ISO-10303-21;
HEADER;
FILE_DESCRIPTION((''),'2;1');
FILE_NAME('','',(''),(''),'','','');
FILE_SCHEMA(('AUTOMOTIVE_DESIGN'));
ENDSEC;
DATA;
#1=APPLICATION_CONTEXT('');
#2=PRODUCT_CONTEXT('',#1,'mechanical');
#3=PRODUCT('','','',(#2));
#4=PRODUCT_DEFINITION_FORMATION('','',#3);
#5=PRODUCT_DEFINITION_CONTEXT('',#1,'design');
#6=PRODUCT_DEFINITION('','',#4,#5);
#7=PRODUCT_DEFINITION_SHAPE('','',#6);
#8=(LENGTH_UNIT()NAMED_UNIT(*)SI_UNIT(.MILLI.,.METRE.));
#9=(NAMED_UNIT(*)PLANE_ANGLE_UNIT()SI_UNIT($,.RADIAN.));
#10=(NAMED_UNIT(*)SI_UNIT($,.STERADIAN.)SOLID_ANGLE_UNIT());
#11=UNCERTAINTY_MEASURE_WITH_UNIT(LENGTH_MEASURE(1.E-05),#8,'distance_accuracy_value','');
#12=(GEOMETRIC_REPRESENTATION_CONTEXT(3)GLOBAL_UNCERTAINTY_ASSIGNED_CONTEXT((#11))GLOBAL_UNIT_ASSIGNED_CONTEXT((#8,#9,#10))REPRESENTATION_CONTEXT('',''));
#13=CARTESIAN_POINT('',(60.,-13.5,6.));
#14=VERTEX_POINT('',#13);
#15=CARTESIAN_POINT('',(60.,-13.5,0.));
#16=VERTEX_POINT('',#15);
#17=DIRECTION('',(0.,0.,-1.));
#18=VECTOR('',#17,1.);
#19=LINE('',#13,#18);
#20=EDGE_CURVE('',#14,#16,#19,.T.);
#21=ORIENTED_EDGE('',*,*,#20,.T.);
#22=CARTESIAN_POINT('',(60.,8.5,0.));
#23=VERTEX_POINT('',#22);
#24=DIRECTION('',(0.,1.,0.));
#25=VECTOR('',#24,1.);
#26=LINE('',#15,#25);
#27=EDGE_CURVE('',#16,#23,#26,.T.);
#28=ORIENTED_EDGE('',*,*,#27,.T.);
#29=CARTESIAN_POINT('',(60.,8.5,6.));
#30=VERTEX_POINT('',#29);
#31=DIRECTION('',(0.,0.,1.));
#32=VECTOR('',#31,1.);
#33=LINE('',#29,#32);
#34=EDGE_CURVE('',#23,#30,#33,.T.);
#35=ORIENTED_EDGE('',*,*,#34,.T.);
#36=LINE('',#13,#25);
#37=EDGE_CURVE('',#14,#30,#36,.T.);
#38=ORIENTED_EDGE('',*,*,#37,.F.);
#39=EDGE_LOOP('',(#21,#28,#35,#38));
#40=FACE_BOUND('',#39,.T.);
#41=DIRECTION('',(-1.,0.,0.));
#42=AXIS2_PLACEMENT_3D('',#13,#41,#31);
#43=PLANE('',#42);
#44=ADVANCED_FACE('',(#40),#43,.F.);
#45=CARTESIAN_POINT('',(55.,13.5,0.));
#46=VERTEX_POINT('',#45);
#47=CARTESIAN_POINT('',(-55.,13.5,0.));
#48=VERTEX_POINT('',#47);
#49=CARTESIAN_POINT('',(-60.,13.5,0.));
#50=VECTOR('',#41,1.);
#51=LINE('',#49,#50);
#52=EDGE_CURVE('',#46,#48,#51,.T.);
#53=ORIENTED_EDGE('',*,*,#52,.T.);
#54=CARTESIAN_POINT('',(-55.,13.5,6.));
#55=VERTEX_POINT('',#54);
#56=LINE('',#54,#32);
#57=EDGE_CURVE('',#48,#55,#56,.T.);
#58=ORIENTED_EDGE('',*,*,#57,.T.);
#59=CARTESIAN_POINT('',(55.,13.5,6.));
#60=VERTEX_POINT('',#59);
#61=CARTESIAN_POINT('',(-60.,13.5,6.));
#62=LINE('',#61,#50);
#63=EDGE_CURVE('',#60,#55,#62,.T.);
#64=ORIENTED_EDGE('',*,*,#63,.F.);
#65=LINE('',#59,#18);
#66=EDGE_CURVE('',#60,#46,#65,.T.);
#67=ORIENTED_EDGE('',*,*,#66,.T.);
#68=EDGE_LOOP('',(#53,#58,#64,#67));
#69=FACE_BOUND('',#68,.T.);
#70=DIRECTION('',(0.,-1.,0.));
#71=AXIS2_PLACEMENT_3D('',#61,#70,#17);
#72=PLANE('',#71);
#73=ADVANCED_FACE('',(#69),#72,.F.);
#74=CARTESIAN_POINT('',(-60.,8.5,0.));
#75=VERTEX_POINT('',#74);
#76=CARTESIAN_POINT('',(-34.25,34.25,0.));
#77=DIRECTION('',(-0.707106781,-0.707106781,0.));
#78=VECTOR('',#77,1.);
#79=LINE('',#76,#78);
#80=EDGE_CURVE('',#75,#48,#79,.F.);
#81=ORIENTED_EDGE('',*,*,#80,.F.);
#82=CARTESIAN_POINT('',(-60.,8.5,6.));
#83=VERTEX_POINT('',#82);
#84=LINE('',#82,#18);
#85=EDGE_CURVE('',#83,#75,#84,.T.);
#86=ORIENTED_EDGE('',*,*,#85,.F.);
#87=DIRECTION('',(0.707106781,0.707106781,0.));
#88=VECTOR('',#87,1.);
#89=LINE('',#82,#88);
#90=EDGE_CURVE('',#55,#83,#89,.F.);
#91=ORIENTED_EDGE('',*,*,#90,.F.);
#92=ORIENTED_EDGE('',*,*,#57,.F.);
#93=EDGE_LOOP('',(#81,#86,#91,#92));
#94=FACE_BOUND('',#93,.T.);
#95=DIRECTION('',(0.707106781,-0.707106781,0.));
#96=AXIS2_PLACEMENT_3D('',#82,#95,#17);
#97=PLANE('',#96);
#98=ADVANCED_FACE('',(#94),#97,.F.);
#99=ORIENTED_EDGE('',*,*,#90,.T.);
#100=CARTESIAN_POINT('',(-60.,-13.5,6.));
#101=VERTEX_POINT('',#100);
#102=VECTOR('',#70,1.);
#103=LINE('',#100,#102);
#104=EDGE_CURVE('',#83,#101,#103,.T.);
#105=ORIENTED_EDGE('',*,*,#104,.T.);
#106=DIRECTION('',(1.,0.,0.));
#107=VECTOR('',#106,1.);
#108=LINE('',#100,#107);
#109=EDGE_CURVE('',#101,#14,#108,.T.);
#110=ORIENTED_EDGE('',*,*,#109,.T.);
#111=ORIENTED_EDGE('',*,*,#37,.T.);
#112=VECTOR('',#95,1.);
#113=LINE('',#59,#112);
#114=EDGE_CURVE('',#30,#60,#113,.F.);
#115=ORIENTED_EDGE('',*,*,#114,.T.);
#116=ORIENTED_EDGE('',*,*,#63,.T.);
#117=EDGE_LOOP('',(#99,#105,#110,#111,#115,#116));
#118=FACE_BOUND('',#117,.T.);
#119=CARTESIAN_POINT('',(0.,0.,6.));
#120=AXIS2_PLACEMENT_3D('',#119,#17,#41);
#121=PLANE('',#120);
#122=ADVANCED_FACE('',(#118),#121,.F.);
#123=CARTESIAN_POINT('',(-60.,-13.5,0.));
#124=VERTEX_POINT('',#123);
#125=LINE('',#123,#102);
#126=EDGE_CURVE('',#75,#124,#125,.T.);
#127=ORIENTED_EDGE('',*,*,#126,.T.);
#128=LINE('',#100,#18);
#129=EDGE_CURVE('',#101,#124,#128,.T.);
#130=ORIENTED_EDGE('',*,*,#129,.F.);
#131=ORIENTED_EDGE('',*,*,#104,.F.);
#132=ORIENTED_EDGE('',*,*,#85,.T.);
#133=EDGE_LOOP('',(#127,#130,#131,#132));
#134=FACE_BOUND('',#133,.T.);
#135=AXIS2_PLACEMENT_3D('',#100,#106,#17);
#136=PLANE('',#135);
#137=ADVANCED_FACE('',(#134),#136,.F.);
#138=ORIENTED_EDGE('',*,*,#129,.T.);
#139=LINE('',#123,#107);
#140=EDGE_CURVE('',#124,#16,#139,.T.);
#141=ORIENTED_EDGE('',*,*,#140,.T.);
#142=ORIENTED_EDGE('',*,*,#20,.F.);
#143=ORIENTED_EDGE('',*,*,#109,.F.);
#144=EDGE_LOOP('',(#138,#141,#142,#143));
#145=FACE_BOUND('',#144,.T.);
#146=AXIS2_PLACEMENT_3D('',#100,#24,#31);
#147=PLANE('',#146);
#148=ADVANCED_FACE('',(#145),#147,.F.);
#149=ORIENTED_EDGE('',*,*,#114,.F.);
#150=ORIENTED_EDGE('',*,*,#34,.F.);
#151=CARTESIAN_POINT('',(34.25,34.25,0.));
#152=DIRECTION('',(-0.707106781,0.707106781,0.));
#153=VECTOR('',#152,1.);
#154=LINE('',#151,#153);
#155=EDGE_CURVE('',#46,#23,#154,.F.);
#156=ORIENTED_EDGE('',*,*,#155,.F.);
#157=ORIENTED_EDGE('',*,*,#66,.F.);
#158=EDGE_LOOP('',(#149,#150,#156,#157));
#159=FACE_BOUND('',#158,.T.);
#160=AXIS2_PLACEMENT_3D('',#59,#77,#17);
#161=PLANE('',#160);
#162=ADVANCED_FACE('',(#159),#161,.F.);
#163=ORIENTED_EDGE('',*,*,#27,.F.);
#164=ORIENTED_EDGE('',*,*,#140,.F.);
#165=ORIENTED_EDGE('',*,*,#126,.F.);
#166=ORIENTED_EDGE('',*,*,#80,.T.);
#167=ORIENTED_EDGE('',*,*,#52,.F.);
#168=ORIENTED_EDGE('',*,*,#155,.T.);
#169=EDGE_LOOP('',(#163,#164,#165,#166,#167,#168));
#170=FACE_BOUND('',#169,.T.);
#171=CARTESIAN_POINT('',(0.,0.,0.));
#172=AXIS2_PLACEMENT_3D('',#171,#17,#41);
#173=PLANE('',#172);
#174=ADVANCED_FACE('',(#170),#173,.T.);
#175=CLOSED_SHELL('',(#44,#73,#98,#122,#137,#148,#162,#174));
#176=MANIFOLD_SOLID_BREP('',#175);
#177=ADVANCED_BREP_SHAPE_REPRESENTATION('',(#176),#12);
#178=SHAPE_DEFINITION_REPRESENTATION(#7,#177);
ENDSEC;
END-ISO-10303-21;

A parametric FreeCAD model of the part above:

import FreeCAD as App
import Part
import Sketcher
Q = App.Units.Quantity


def edges_at(feature, points):
    """Names of the edges that pass closest to the given points."""
    edges = feature.Shape.Edges
    near = lambda p: min(range(len(edges)), key=lambda i: edges[i].distToShape(Part.Vertex(*p))[0])
    return sorted({f"Edge{near(p) + 1}" for p in points})


def add_polygon(sketch, points):
    """Adds a closed chain of lines whose ends are joined by coincident constraints."""
    first, n = sketch.GeometryCount, len(points)
    for a, b in zip(points, points[1:] + points[:1]):
        sketch.addGeometry(Part.LineSegment(App.Vector(*a, 0), App.Vector(*b, 0)), False)
    for i in range(n):
        sketch.addConstraint(Sketcher.Constraint("Coincident", first + i, 2, first + (i + 1) % n, 1))

doc = App.newDocument("Part")
body = doc.addObject("PartDesign::Body", "Body")

# Sketch on XY plane
sketch1 = body.newObject("Sketcher::SketchObject", "Sketch")
sketch1.AttachmentSupport = (doc.getObject("XY_Plane"), [""])
sketch1.MapMode = "FlatFace"
add_polygon(sketch1, [(-60, 14), (-60, -14), (60, -14), (60, 14)])  # lines 0-3
sketch1.addConstraint([
    Sketcher.Constraint("Vertical", 0),
    Sketcher.Constraint("Horizontal", 1),
    Sketcher.Constraint("Vertical", 2),
    Sketcher.Constraint("Horizontal", 3),
    Sketcher.Constraint("Symmetric", 0, 2, 2, 2, -1, 1),
    Sketcher.Constraint("DistanceX", 1, 1, 1, 2, Q("120 mm")),
    Sketcher.Constraint("DistanceY", 0, 2, 0, 1, Q("27 mm")),
])
pad1 = body.newObject("PartDesign::Pad", "Pad")
pad1.Profile = sketch1
pad1.Length = 6
doc.recompute()

chamfer = body.newObject("PartDesign::Chamfer", "Chamfer")
chamfer.Base = (pad1, edges_at(pad1, [(-60, 13.5, 3), (60, 13.5, 3)]))
chamfer.Size = 5

doc.recompute()
